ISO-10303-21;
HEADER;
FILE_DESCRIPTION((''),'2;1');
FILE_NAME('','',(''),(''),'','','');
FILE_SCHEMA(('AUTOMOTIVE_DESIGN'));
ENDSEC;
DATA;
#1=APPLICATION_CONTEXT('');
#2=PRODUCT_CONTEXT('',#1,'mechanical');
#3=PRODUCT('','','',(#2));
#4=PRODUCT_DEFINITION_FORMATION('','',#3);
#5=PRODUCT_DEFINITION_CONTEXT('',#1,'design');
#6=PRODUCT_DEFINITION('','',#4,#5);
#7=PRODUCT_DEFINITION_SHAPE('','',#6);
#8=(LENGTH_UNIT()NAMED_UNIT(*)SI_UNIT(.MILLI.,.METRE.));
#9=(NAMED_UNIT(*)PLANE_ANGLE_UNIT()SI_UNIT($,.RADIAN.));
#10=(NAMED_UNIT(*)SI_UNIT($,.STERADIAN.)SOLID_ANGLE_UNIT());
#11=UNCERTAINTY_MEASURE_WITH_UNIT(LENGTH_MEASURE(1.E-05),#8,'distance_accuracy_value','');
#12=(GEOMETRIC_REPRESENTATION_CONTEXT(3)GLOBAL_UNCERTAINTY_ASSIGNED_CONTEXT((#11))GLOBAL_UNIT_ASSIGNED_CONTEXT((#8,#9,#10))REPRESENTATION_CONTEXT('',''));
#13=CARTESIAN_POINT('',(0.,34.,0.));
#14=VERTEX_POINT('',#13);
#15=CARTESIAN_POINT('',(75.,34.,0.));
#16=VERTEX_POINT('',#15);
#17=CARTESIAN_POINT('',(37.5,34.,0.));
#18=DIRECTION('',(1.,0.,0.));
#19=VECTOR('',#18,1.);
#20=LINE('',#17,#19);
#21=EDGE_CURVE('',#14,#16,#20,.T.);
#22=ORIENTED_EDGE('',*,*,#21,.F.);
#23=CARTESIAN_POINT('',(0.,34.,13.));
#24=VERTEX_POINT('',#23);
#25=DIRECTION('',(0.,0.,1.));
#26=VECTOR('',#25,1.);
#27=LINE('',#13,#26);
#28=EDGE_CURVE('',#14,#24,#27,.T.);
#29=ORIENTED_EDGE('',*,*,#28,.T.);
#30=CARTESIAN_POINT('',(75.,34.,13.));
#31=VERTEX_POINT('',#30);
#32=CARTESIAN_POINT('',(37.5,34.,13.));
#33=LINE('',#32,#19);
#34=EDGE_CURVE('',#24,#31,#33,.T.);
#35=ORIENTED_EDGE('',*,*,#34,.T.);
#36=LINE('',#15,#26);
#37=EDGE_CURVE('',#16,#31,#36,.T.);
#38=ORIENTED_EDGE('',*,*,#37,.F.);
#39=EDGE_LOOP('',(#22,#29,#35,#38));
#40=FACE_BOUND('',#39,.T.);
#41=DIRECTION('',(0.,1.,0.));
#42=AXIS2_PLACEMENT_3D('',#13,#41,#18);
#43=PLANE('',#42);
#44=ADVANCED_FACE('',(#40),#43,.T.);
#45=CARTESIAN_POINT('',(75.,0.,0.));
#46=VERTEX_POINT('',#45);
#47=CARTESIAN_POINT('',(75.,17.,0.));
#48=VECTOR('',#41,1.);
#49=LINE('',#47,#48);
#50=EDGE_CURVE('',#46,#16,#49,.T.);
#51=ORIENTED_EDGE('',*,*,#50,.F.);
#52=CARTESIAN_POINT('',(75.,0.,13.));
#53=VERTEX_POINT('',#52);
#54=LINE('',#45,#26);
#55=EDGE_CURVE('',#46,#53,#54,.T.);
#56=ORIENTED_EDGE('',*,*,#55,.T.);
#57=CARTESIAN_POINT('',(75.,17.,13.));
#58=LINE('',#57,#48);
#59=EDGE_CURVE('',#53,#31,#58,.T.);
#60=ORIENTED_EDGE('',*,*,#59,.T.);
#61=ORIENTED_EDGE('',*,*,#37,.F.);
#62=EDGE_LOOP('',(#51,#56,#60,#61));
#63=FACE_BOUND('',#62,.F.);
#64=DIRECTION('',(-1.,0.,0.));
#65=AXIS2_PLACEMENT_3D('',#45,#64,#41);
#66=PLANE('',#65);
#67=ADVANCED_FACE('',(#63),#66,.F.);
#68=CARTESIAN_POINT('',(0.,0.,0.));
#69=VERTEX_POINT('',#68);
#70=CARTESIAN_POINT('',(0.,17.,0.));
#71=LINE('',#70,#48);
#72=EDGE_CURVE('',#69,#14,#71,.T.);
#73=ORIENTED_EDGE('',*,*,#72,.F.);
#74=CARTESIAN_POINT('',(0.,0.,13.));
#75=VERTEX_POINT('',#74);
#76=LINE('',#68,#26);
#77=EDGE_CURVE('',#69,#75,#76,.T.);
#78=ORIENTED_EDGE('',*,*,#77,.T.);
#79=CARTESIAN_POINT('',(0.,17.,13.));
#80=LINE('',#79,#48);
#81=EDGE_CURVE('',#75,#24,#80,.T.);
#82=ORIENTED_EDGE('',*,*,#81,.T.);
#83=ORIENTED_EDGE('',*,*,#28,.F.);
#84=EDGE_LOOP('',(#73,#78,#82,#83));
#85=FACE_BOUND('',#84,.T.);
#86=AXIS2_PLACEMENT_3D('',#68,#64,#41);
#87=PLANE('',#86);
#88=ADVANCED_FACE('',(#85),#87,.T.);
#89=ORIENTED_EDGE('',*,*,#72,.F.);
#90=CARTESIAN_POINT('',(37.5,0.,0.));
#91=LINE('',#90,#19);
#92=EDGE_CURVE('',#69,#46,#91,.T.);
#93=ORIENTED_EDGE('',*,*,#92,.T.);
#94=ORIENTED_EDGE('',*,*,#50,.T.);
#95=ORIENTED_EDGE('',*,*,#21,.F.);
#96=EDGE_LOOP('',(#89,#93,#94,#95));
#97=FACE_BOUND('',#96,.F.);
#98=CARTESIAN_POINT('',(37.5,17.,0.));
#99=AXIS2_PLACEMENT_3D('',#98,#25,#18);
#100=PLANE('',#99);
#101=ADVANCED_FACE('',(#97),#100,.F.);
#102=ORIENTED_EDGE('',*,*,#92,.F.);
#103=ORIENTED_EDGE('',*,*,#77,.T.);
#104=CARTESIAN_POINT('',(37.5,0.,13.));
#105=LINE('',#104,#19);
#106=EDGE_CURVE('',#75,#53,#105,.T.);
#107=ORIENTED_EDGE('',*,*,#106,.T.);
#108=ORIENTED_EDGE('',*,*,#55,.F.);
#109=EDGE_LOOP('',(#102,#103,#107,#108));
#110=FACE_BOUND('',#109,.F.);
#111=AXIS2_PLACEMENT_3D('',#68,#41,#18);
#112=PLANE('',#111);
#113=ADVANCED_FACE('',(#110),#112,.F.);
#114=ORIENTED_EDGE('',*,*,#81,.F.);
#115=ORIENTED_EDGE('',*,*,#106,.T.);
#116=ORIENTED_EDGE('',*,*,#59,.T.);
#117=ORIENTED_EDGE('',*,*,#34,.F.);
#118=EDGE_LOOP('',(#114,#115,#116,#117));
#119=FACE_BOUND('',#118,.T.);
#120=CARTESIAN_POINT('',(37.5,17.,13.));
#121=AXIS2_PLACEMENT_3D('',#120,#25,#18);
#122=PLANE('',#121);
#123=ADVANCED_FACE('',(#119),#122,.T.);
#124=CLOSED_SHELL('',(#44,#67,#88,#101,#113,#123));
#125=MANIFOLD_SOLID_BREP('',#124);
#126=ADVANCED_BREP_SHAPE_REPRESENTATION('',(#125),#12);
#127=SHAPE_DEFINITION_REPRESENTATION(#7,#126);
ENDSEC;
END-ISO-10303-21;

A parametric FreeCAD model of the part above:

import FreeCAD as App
import Part
import Sketcher

doc = App.newDocument("Part")
params = doc.addObject("Spreadsheet::Sheet", "Params")
for row, (alias, value) in enumerate([
    ("sketch1_width", "75 mm"),
    ("sketch1_height", "34 mm"),
    ("pad1_length", "13 mm"),
], start=1):
    params.set(f"A{row}", alias)
    params.set(f"B{row}", "=" + value)
    params.setAlias(f"B{row}", alias)

body = doc.addObject("PartDesign::Body", "Body")

# Sketch on XY plane
sketch1 = body.newObject("Sketcher::SketchObject", "Sketch")
sketch1.AttachmentSupport = (doc.getObject("XY_Plane"), [""])
sketch1.MapMode = "FlatFace"
sketch1.addGeometry([
    Part.LineSegment(App.Vector(0, 34, 0), App.Vector(0, 0, 0)),
    Part.LineSegment(App.Vector(0, 0, 0), App.Vector(75, 0, 0)),
    Part.LineSegment(App.Vector(75, 0, 0), App.Vector(75, 34, 0)),
    Part.LineSegment(App.Vector(75, 34, 0), App.Vector(0, 34, 0)),
], False)
sketch1.addConstraint([
    Sketcher.Constraint("Coincident", 0, 2, 1, 1),
    Sketcher.Constraint("Coincident", 1, 2, 2, 1),
    Sketcher.Constraint("Coincident", 2, 2, 3, 1),
    Sketcher.Constraint("Coincident", 3, 2, 0, 1),
    Sketcher.Constraint("Vertical", 0),
    Sketcher.Constraint("Horizontal", 1),
    Sketcher.Constraint("Vertical", 2),
    Sketcher.Constraint("Horizontal", 3),
    Sketcher.Constraint("Coincident", 0, 2, -1, 1),
    Sketcher.Constraint("DistanceX", 1, 1, 1, 2, 75.0),
    Sketcher.Constraint("DistanceY", 0, 2, 0, 1, 34.0),
])
sketch1.setExpression("Constraints[9]", "Params.sketch1_width")
sketch1.setExpression("Constraints[10]", "Params.sketch1_height")
pad1 = body.newObject("PartDesign::Pad", "Pad")
pad1.Profile = sketch1
pad1.setExpression("Length", "Params.pad1_length")

doc.recompute()
